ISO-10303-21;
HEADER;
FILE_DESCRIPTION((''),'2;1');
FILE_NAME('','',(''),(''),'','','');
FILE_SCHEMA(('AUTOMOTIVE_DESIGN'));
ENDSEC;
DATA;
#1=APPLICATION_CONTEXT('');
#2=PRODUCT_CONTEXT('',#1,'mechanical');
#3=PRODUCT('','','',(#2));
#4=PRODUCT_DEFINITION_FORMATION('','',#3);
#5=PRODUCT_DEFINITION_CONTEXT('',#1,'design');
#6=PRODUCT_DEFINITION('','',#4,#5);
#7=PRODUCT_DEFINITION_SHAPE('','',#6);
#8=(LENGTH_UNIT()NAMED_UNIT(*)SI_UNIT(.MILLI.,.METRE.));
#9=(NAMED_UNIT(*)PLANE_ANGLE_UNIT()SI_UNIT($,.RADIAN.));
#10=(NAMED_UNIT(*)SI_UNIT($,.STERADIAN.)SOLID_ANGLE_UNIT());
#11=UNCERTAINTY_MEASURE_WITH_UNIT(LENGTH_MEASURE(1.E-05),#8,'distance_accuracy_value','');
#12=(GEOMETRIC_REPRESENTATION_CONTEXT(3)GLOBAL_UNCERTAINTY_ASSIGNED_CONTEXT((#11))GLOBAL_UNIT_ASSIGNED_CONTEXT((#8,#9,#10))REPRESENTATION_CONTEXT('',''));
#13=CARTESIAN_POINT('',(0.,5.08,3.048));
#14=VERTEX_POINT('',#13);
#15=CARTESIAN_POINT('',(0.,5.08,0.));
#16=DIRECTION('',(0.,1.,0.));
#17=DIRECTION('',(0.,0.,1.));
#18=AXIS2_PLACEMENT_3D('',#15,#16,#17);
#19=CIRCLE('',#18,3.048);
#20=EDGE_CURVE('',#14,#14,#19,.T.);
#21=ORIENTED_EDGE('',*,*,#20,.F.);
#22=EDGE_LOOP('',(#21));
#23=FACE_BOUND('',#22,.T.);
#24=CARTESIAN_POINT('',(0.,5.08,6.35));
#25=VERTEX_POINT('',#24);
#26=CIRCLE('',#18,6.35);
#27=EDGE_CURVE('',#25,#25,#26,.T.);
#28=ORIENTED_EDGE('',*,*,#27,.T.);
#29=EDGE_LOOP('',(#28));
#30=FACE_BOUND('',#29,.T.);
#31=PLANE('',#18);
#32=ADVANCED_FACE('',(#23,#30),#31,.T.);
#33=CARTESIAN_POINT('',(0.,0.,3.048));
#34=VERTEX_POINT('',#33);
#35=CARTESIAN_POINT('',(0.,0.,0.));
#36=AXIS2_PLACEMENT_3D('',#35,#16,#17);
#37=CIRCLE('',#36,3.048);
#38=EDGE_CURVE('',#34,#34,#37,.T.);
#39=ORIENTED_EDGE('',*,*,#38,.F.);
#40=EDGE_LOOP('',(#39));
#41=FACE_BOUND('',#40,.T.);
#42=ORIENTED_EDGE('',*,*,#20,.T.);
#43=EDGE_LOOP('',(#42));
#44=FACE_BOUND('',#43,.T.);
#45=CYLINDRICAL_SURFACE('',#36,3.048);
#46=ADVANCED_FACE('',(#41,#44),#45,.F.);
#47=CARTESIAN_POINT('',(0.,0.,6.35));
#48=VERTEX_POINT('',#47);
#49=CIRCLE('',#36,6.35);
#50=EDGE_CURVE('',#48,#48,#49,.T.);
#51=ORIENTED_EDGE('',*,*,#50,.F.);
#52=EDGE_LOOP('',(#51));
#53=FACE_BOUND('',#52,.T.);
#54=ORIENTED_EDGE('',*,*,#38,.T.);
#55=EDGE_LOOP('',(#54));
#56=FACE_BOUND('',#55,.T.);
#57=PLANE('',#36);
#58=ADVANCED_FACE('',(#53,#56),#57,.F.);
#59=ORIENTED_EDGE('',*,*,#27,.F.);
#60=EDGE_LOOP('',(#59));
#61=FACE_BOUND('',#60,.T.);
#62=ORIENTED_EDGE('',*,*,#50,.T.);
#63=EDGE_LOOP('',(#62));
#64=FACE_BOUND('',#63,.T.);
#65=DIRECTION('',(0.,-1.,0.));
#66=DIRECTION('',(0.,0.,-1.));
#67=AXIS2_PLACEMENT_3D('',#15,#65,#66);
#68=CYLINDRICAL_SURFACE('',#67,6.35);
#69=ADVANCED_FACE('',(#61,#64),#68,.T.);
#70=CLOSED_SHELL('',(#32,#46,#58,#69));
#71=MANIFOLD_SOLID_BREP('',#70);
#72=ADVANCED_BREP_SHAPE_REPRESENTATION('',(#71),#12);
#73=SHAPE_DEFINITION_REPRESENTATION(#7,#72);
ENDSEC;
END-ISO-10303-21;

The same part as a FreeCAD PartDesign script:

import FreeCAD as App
import Part
import Sketcher
from FreeCAD import Vector
Q = App.Units.Quantity

doc = App.newDocument("Part")
params = doc.addObject("Spreadsheet::Sheet", "Params")
for row, (alias, value) in enumerate([
    ("sketch1_diameter", "0.5 in"),
    ("pad1_length", "0.2 in"),
    ("sketch2_diameter", "0.24 in"),
    ("pocket1_length", "0.2 in"),
], start=1):
    params.set(f"A{row}", alias)
    params.set(f"B{row}", "=" + value)
    params.setAlias(f"B{row}", alias)

body = doc.addObject("PartDesign::Body", "Body")

# Sketch on XZ plane
sketch1 = doc.addObject("Sketcher::SketchObject", "Sketch")
body.addObject(sketch1)
sketch1.AttachmentSupport = (doc.XZ_Plane, [""])
sketch1.MapMode = "FlatFace"
sketch1.addGeometry(Part.Circle(Vector(0, 0, 0), Vector(0, 0, 1), 6), False)
sketch1.addConstraint([
    Sketcher.Constraint("Coincident", 0, 3, -1, 1),
    Sketcher.Constraint("Diameter", 0, Q("0.5 in")),
])
sketch1.setExpression("Constraints[1]", "Params.sketch1_diameter")
pad1 = doc.addObject("PartDesign::Pad", "Pad")
body.addObject(pad1)
pad1.Profile = sketch1
pad1.setExpression("Length", "Params.pad1_length")
pad1.Reversed = True

# Sketch on XZ plane
sketch2 = doc.addObject("Sketcher::SketchObject", "Sketch001")
body.addObject(sketch2)
sketch2.AttachmentSupport = (doc.XZ_Plane, [""])
sketch2.MapMode = "FlatFace"
sketch2.AttachmentOffset = App.Placement(Vector(0, 0, -0.2 * 25.4), App.Rotation())
sketch2.addGeometry(Part.Circle(Vector(0, 0, 0), Vector(0, 0, 1), 3), False)
sketch2.addConstraint([
    Sketcher.Constraint("Coincident", 0, 3, -1, 1),
    Sketcher.Constraint("Diameter", 0, Q("0.24 in")),
])
sketch2.setExpression("Constraints[1]", "Params.sketch2_diameter")
pocket1 = doc.addObject("PartDesign::Pocket", "Pocket")
body.addObject(pocket1)
pocket1.Profile = sketch2
pocket1.setExpression("Length", "Params.pocket1_length")
pocket1.Reversed = True

doc.recompute()
